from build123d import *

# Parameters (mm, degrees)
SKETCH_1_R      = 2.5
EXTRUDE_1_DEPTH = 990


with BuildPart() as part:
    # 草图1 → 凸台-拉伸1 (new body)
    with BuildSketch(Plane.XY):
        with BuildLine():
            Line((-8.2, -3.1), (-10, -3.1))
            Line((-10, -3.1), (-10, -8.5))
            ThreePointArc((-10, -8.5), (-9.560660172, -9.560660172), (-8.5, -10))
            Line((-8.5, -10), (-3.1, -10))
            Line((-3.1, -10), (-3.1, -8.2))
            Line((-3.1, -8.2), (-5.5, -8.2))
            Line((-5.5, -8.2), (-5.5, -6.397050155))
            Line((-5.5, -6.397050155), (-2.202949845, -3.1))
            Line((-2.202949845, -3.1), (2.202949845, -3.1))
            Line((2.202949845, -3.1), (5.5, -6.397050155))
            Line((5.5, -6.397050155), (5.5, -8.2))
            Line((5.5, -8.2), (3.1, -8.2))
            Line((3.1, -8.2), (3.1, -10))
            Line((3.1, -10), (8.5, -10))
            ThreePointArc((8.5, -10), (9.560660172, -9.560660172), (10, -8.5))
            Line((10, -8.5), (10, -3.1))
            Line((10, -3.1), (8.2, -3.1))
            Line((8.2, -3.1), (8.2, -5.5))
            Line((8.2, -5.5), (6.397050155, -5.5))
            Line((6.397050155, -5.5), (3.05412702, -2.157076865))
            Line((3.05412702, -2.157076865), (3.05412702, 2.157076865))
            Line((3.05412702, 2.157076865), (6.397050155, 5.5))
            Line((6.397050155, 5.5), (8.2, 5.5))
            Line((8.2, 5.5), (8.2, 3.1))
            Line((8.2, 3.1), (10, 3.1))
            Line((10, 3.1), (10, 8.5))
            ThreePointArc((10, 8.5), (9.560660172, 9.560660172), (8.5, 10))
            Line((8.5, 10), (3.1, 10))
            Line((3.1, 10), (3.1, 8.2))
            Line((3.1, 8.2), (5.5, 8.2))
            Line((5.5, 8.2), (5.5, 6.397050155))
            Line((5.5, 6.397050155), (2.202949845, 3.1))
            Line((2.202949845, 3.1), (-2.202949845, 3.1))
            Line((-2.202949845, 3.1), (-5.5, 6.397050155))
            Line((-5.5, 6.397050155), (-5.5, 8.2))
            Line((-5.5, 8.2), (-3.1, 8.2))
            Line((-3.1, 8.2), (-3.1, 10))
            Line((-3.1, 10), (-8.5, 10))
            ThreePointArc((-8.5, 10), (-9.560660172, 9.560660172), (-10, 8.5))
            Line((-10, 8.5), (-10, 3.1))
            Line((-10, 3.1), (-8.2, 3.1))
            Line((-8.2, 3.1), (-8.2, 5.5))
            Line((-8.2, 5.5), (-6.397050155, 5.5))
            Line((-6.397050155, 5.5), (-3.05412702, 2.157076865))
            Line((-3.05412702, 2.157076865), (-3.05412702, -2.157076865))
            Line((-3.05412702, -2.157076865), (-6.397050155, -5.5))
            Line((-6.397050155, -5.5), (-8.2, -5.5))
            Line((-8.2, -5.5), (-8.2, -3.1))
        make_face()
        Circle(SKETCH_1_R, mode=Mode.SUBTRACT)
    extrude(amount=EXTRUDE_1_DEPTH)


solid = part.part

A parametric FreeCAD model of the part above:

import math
import FreeCAD as App
import Part
import Sketcher

V = App.Vector
Q = App.Units.Quantity

doc = App.newDocument("Part")
body = doc.addObject("PartDesign::Body", "Body")

# Sketch on XY plane
sketch1 = body.newObject("Sketcher::SketchObject", "Sketch")
sketch1.AttachmentSupport = (doc.getObject("XY_Plane"), [""])
sketch1.MapMode = "FlatFace"
sketch1.addGeometry(Part.LineSegment(V(-8.2, -3.1, 0), V(-10, -3.1, 0)), False)
sketch1.addGeometry(Part.LineSegment(V(-10, -3.1, 0), V(-10, -8.5, 0)), False)
sketch1.addGeometry(Part.ArcOfCircle(Part.Circle(V(-8.5, -8.5, 0), V(0, 0, 1), 1.5), math.radians(180), math.radians(270)), False)
sketch1.addGeometry(Part.LineSegment(V(-8.5, -10, 0), V(-3.1, -10, 0)), False)
sketch1.addGeometry(Part.LineSegment(V(-3.1, -10, 0), V(-3.1, -8.2, 0)), False)
sketch1.addGeometry(Part.LineSegment(V(-3.1, -8.2, 0), V(-5.5, -8.2, 0)), False)
sketch1.addGeometry(Part.LineSegment(V(-5.5, -8.2, 0), V(-5.5, -6.39705, 0)), False)
sketch1.addGeometry(Part.LineSegment(V(-5.5, -6.39705, 0), V(-2.20295, -3.1, 0)), False)
sketch1.addGeometry(Part.LineSegment(V(-2.20295, -3.1, 0), V(2.20295, -3.1, 0)), False)
sketch1.addGeometry(Part.LineSegment(V(2.20295, -3.1, 0), V(5.5, -6.39705, 0)), False)
sketch1.addGeometry(Part.LineSegment(V(5.5, -6.39705, 0), V(5.5, -8.2, 0)), False)
sketch1.addGeometry(Part.LineSegment(V(5.5, -8.2, 0), V(3.1, -8.2, 0)), False)
sketch1.addGeometry(Part.LineSegment(V(3.1, -8.2, 0), V(3.1, -10, 0)), False)
sketch1.addGeometry(Part.LineSegment(V(3.1, -10, 0), V(8.5, -10, 0)), False)
sketch1.addGeometry(Part.ArcOfCircle(Part.Circle(V(8.5, -8.5, 0), V(0, 0, 1), 1.5), math.radians(-90), math.radians(0)), False)
sketch1.addGeometry(Part.LineSegment(V(10, -8.5, 0), V(10, -3.1, 0)), False)
sketch1.addGeometry(Part.LineSegment(V(10, -3.1, 0), V(8.2, -3.1, 0)), False)
sketch1.addGeometry(Part.LineSegment(V(8.2, -3.1, 0), V(8.2, -5.5, 0)), False)
sketch1.addGeometry(Part.LineSegment(V(8.2, -5.5, 0), V(6.39705, -5.5, 0)), False)
sketch1.addGeometry(Part.LineSegment(V(6.39705, -5.5, 0), V(3.054127, -2.157077, 0)), False)
sketch1.addGeometry(Part.LineSegment(V(3.054127, -2.157077, 0), V(3.054127, 2.157077, 0)), False)
sketch1.addGeometry(Part.LineSegment(V(3.054127, 2.157077, 0), V(6.39705, 5.5, 0)), False)
sketch1.addGeometry(Part.LineSegment(V(6.39705, 5.5, 0), V(8.2, 5.5, 0)), False)
sketch1.addGeometry(Part.LineSegment(V(8.2, 5.5, 0), V(8.2, 3.1, 0)), False)
sketch1.addGeometry(Part.LineSegment(V(8.2, 3.1, 0), V(10, 3.1, 0)), False)
sketch1.addGeometry(Part.LineSegment(V(10, 3.1, 0), V(10, 8.5, 0)), False)
sketch1.addGeometry(Part.ArcOfCircle(Part.Circle(V(8.5, 8.5, 0), V(0, 0, 1), 1.5), math.radians(0), math.radians(90)), False)
sketch1.addGeometry(Part.LineSegment(V(8.5, 10, 0), V(3.1, 10, 0)), False)
sketch1.addGeometry(Part.LineSegment(V(3.1, 10, 0), V(3.1, 8.2, 0)), False)
sketch1.addGeometry(Part.LineSegment(V(3.1, 8.2, 0), V(5.5, 8.2, 0)), False)
sketch1.addGeometry(Part.LineSegment(V(5.5, 8.2, 0), V(5.5, 6.39705, 0)), False)
sketch1.addGeometry(Part.LineSegment(V(5.5, 6.39705, 0), V(2.20295, 3.1, 0)), False)
sketch1.addGeometry(Part.LineSegment(V(2.20295, 3.1, 0), V(-2.20295, 3.1, 0)), False)
sketch1.addGeometry(Part.LineSegment(V(-2.20295, 3.1, 0), V(-5.5, 6.39705, 0)), False)
sketch1.addGeometry(Part.LineSegment(V(-5.5, 6.39705, 0), V(-5.5, 8.2, 0)), False)
sketch1.addGeometry(Part.LineSegment(V(-5.5, 8.2, 0), V(-3.1, 8.2, 0)), False)
sketch1.addGeometry(Part.LineSegment(V(-3.1, 8.2, 0), V(-3.1, 10, 0)), False)
sketch1.addGeometry(Part.LineSegment(V(-3.1, 10, 0), V(-8.5, 10, 0)), False)
sketch1.addGeometry(Part.ArcOfCircle(Part.Circle(V(-8.5, 8.5, 0), V(0, 0, 1), 1.5), math.radians(90), math.radians(180)), False)
sketch1.addGeometry(Part.LineSegment(V(-10, 8.5, 0), V(-10, 3.1, 0)), False)
sketch1.addGeometry(Part.LineSegment(V(-10, 3.1, 0), V(-8.2, 3.1, 0)), False)
sketch1.addGeometry(Part.LineSegment(V(-8.2, 3.1, 0), V(-8.2, 5.5, 0)), False)
sketch1.addGeometry(Part.LineSegment(V(-8.2, 5.5, 0), V(-6.39705, 5.5, 0)), False)
sketch1.addGeometry(Part.LineSegment(V(-6.39705, 5.5, 0), V(-3.054127, 2.157077, 0)), False)
sketch1.addGeometry(Part.LineSegment(V(-3.054127, 2.157077, 0), V(-3.054127, -2.157077, 0)), False)
sketch1.addGeometry(Part.LineSegment(V(-3.054127, -2.157077, 0), V(-6.39705, -5.5, 0)), False)
sketch1.addGeometry(Part.LineSegment(V(-6.39705, -5.5, 0), V(-8.2, -5.5, 0)), False)
sketch1.addGeometry(Part.LineSegment(V(-8.2, -5.5, 0), V(-8.2, -3.1, 0)), False)
sketch1.addGeometry(Part.Circle(V(0, 0, 0), V(0, 0, 1), 2.5), False)
sketch1.addConstraint(Sketcher.Constraint("Coincident", 0, 2, 1, 1))
sketch1.addConstraint(Sketcher.Constraint("Tangent", 1, 2, 2, 1))
sketch1.addConstraint(Sketcher.Constraint("Tangent", 2, 2, 3, 1))
sketch1.addConstraint(Sketcher.Constraint("Coincident", 3, 2, 4, 1))
sketch1.addConstraint(Sketcher.Constraint("Coincident", 4, 2, 5, 1))
sketch1.addConstraint(Sketcher.Constraint("Coincident", 5, 2, 6, 1))
sketch1.addConstraint(Sketcher.Constraint("Coincident", 6, 2, 7, 1))
sketch1.addConstraint(Sketcher.Constraint("Coincident", 7, 2, 8, 1))
sketch1.addConstraint(Sketcher.Constraint("Coincident", 8, 2, 9, 1))
sketch1.addConstraint(Sketcher.Constraint("Coincident", 9, 2, 10, 1))
sketch1.addConstraint(Sketcher.Constraint("Coincident", 10, 2, 11, 1))
sketch1.addConstraint(Sketcher.Constraint("Coincident", 11, 2, 12, 1))
sketch1.addConstraint(Sketcher.Constraint("Coincident", 12, 2, 13, 1))
sketch1.addConstraint(Sketcher.Constraint("Tangent", 13, 2, 14, 1))
sketch1.addConstraint(Sketcher.Constraint("Tangent", 14, 2, 15, 1))
sketch1.addConstraint(Sketcher.Constraint("Coincident", 15, 2, 16, 1))
sketch1.addConstraint(Sketcher.Constraint("Coincident", 16, 2, 17, 1))
sketch1.addConstraint(Sketcher.Constraint("Coincident", 17, 2, 18, 1))
sketch1.addConstraint(Sketcher.Constraint("Coincident", 18, 2, 19, 1))
sketch1.addConstraint(Sketcher.Constraint("Coincident", 19, 2, 20, 1))
sketch1.addConstraint(Sketcher.Constraint("Coincident", 20, 2, 21, 1))
sketch1.addConstraint(Sketcher.Constraint("Coincident", 21, 2, 22, 1))
sketch1.addConstraint(Sketcher.Constraint("Coincident", 22, 2, 23, 1))
sketch1.addConstraint(Sketcher.Constraint("Coincident", 23, 2, 24, 1))
sketch1.addConstraint(Sketcher.Constraint("Coincident", 24, 2, 25, 1))
sketch1.addConstraint(Sketcher.Constraint("Tangent", 25, 2, 26, 1))
sketch1.addConstraint(Sketcher.Constraint("Tangent", 26, 2, 27, 1))
sketch1.addConstraint(Sketcher.Constraint("Coincident", 27, 2, 28, 1))
sketch1.addConstraint(Sketcher.Constraint("Coincident", 28, 2, 29, 1))
sketch1.addConstraint(Sketcher.Constraint("Coincident", 29, 2, 30, 1))
sketch1.addConstraint(Sketcher.Constraint("Coincident", 30, 2, 31, 1))
sketch1.addConstraint(Sketcher.Constraint("Coincident", 31, 2, 32, 1))
sketch1.addConstraint(Sketcher.Constraint("Coincident", 32, 2, 33, 1))
sketch1.addConstraint(Sketcher.Constraint("Coincident", 33, 2, 34, 1))
sketch1.addConstraint(Sketcher.Constraint("Coincident", 34, 2, 35, 1))
sketch1.addConstraint(Sketcher.Constraint("Coincident", 35, 2, 36, 1))
sketch1.addConstraint(Sketcher.Constraint("Coincident", 36, 2, 37, 1))
sketch1.addConstraint(Sketcher.Constraint("Tangent", 37, 2, 38, 1))
sketch1.addConstraint(Sketcher.Constraint("Tangent", 38, 2, 39, 1))
sketch1.addConstraint(Sketcher.Constraint("Coincident", 39, 2, 40, 1))
sketch1.addConstraint(Sketcher.Constraint("Coincident", 40, 2, 41, 1))
sketch1.addConstraint(Sketcher.Constraint("Coincident", 41, 2, 42, 1))
sketch1.addConstraint(Sketcher.Constraint("Coincident", 42, 2, 43, 1))
sketch1.addConstraint(Sketcher.Constraint("Coincident", 43, 2, 44, 1))
sketch1.addConstraint(Sketcher.Constraint("Coincident", 44, 2, 45, 1))
sketch1.addConstraint(Sketcher.Constraint("Coincident", 45, 2, 46, 1))
sketch1.addConstraint(Sketcher.Constraint("Coincident", 46, 2, 47, 1))
sketch1.addConstraint(Sketcher.Constraint("Coincident", 47, 2, 0, 1))
sketch1.addConstraint(Sketcher.Constraint("Horizontal", 0))
sketch1.addConstraint(Sketcher.Constraint("Vertical", 1))
sketch1.addConstraint(Sketcher.Constraint("Horizontal", 3))
sketch1.addConstraint(Sketcher.Constraint("Vertical", 4))
sketch1.addConstraint(Sketcher.Constraint("Horizontal", 5))
sketch1.addConstraint(Sketcher.Constraint("Vertical", 6))
sketch1.addConstraint(Sketcher.Constraint("Horizontal", 8))
sketch1.addConstraint(Sketcher.Constraint("Vertical", 10))
sketch1.addConstraint(Sketcher.Constraint("Horizontal", 11))
sketch1.addConstraint(Sketcher.Constraint("Vertical", 12))
sketch1.addConstraint(Sketcher.Constraint("Horizontal", 13))
sketch1.addConstraint(Sketcher.Constraint("Vertical", 15))
sketch1.addConstraint(Sketcher.Constraint("Horizontal", 16))
sketch1.addConstraint(Sketcher.Constraint("Vertical", 17))
sketch1.addConstraint(Sketcher.Constraint("Horizontal", 18))
sketch1.addConstraint(Sketcher.Constraint("Vertical", 20))
sketch1.addConstraint(Sketcher.Constraint("Horizontal", 22))
sketch1.addConstraint(Sketcher.Constraint("Vertical", 23))
sketch1.addConstraint(Sketcher.Constraint("Horizontal", 24))
sketch1.addConstraint(Sketcher.Constraint("Vertical", 25))
sketch1.addConstraint(Sketcher.Constraint("Horizontal", 27))
sketch1.addConstraint(Sketcher.Constraint("Vertical", 28))
sketch1.addConstraint(Sketcher.Constraint("Horizontal", 29))
sketch1.addConstraint(Sketcher.Constraint("Vertical", 30))
sketch1.addConstraint(Sketcher.Constraint("Horizontal", 32))
sketch1.addConstraint(Sketcher.Constraint("Vertical", 34))
sketch1.addConstraint(Sketcher.Constraint("Horizontal", 35))
sketch1.addConstraint(Sketcher.Constraint("Vertical", 36))
sketch1.addConstraint(Sketcher.Constraint("Horizontal", 37))
sketch1.addConstraint(Sketcher.Constraint("Vertical", 39))
sketch1.addConstraint(Sketcher.Constraint("Horizontal", 40))
sketch1.addConstraint(Sketcher.Constraint("Vertical", 41))
sketch1.addConstraint(Sketcher.Constraint("Horizontal", 42))
sketch1.addConstraint(Sketcher.Constraint("Vertical", 44))
sketch1.addConstraint(Sketcher.Constraint("Horizontal", 46))
sketch1.addConstraint(Sketcher.Constraint("Vertical", 47))
sketch1.addConstraint(Sketcher.Constraint("Coincident", 48, 3, -1, 1))
sketch1.addConstraint(Sketcher.Constraint("Equal", 2, 14))
sketch1.addConstraint(Sketcher.Constraint("Equal", 14, 26))
sketch1.addConstraint(Sketcher.Constraint("Equal", 26, 38))
sketch1.addConstraint(Sketcher.Constraint("Symmetric", 2, 3, 26, 3, -1, 1))
sketch1.addConstraint(Sketcher.Constraint("Symmetric", 14, 3, 38, 3, -1, 1))
sketch1.addConstraint(Sketcher.Constraint("Symmetric", 4, 2, 28, 2, -1, 1))
sketch1.addConstraint(Sketcher.Constraint("Symmetric", 6, 2, 30, 2, -1, 1))
sketch1.addConstraint(Sketcher.Constraint("Symmetric", 7, 2, 31, 2, -1, 1))
sketch1.addConstraint(Sketcher.Constraint("Symmetric", 9, 2, 33, 2, -1, 1))
sketch1.addConstraint(Sketcher.Constraint("Symmetric", 11, 2, 35, 2, -1, 1))
sketch1.addConstraint(Sketcher.Constraint("Symmetric", 16, 2, 40, 2, -1, 1))
sketch1.addConstraint(Sketcher.Constraint("Symmetric", 18, 2, 42, 2, -1, 1))
sketch1.addConstraint(Sketcher.Constraint("Symmetric", 19, 2, 43, 2, -1, 1))
sketch1.addConstraint(Sketcher.Constraint("Symmetric", 21, 2, 45, 2, -1, 1))
sketch1.addConstraint(Sketcher.Constraint("Symmetric", 23, 2, 47, 2, -1, 1))
sketch1.addConstraint(Sketcher.Constraint("Symmetric", 2, 3, 14, 3, -2))
sketch1.addConstraint(Sketcher.Constraint("Symmetric", 6, 2, 9, 2, -2))
sketch1.addConstraint(Sketcher.Constraint("Symmetric", 4, 2, 11, 2, -2))
sketch1.addConstraint(Sketcher.Constraint("Symmetric", 23, 2, 40, 2, -2))
sketch1.addConstraint(Sketcher.Constraint("Symmetric", 21, 2, 42, 2, -2))
sketch1.addConstraint(Sketcher.Constraint("Perpendicular", 7, 9))
sketch1.addConstraint(Sketcher.Constraint("Parallel", 9, 19))
sketch1.addConstraint(Sketcher.Constraint("Perpendicular", 19, 21))
sketch1.addConstraint(Sketcher.Constraint("Perpendicular", 31, 33))
sketch1.addConstraint(Sketcher.Constraint("Perpendicular", 43, 45))
sketch1.addConstraint(Sketcher.Constraint("Horizontal", 0, 2, 7, 2))
sketch1.addConstraint(Sketcher.Constraint("Horizontal", 20, 2, 43, 2))
sketch1.addConstraint(Sketcher.Constraint("Equal", 37, 1))
sketch1.addConstraint(Sketcher.Constraint("Equal", 40, 4))
sketch1.addConstraint(Sketcher.Constraint("Equal", 46, 6))
sketch1.addConstraint(Sketcher.Constraint("Equal", 35, 17))
sketch1.addConstraint(Sketcher.Constraint("Diameter", 48, Q("5 mm")))
sketch1.addConstraint(Sketcher.Constraint("Radius", 2, Q("1.5 mm")))
sketch1.addConstraint(Sketcher.Constraint("DistanceX", 0, 2, 0, 1, Q("1.8 mm")))
sketch1.addConstraint(Sketcher.Constraint("DistanceX", 3, 1, 3, 2, Q("5.4 mm")))
sketch1.addConstraint(Sketcher.Constraint("DistanceX", 5, 2, 5, 1, Q("2.4 mm")))
sketch1.addConstraint(Sketcher.Constraint("DistanceX", 0, 2, -1, 1, Q("10 mm")))
sketch1.addConstraint(Sketcher.Constraint("DistanceY", 2, 2, -1, 1, Q("10 mm")))
sketch1.addConstraint(Sketcher.Constraint("DistanceX", 8, 1, 8, 2, Q("4.4059 mm")))
sketch1.addConstraint(Sketcher.Constraint("DistanceY", 20, 1, 20, 2, Q("4.314154 mm")))
pad1 = body.newObject("PartDesign::Pad", "Pad")
pad1.Profile = sketch1
pad1.Length = 990

doc.recompute()
